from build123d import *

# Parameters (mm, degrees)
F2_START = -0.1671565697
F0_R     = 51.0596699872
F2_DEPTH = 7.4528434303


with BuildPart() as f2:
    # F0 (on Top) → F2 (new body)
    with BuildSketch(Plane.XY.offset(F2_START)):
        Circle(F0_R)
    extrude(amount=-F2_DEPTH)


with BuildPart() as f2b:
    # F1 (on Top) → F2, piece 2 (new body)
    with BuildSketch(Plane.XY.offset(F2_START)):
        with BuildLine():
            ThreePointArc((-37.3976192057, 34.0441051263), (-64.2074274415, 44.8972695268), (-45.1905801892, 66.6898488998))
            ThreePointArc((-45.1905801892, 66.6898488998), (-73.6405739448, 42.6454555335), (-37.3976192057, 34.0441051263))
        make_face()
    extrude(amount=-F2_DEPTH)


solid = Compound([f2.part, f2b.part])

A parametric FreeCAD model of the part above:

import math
import FreeCAD as App
import Part
import Sketcher
from FreeCAD import Vector

doc = App.newDocument("Part")
body = doc.addObject("PartDesign::Body", "Body")

sketch1 = body.newObject("Sketcher::SketchObject", "Sketch")
sketch1.AttachmentSupport = (doc.getObject("XY_Plane"), [""])
sketch1.MapMode = "FlatFace"
sketch1.AttachmentOffset = App.Placement(Vector(0, 0, -0.167157), App.Rotation())
sketch1.addGeometry(Part.Circle(Vector(0, 0, 0), Vector(0, 0, 1), 51), False)
sketch1.addConstraint([
    Sketcher.Constraint("Coincident", 0, 3, -1, 1),
    Sketcher.Constraint("Diameter", 0, 102.11934),
])
pad1 = body.newObject("PartDesign::Pad", "Pad")
pad1.Profile = sketch1
pad1.Length = 7.452843
pad1.Reversed = True
body2 = doc.addObject("PartDesign::Body", "Body001")

sketch2 = body2.newObject("Sketcher::SketchObject", "Sketch001")
sketch2.AttachmentSupport = (doc.getObject("XY_Plane001"), [""])
sketch2.MapMode = "FlatFace"
sketch2.AttachmentOffset = App.Placement(Vector(0, 0, -0.167157), App.Rotation())
sketch2.addGeometry([
    Part.ArcOfCircle(Part.Circle(Vector(-47, 49, 0), Vector(0, 0, 1), 18), math.radians(84), math.radians(302)),
    Part.ArcOfCircle(Part.Circle(Vector(-53, 47, 0), Vector(0, 0, 1), 21), math.radians(67), math.radians(320)),
], False)
sketch2.addConstraint([
    Sketcher.Constraint("Coincident", 0, 1, 1, 1),
    Sketcher.Constraint("Coincident", 1, 2, 0, 2),
    Sketcher.Constraint("DistanceY", -1, 1, 0, 3, 49.02),
    Sketcher.Constraint("Radius", 0, 17.755921),
    Sketcher.Constraint("Radius", 1, 20.86185),
    Sketcher.Constraint("DistanceX", 1, 3, 0, 3, 6.4121),
    Sketcher.Constraint("DistanceY", 1, 3, 0, 1, 19.2005),
    Sketcher.Constraint("DistanceX", 0, 1, -1, 1, 45.19058),
])
pad2 = body2.newObject("PartDesign::Pad", "Pad001")
pad2.Profile = sketch2
pad2.Length = 7.452843
pad2.Reversed = True

doc.recompute()
